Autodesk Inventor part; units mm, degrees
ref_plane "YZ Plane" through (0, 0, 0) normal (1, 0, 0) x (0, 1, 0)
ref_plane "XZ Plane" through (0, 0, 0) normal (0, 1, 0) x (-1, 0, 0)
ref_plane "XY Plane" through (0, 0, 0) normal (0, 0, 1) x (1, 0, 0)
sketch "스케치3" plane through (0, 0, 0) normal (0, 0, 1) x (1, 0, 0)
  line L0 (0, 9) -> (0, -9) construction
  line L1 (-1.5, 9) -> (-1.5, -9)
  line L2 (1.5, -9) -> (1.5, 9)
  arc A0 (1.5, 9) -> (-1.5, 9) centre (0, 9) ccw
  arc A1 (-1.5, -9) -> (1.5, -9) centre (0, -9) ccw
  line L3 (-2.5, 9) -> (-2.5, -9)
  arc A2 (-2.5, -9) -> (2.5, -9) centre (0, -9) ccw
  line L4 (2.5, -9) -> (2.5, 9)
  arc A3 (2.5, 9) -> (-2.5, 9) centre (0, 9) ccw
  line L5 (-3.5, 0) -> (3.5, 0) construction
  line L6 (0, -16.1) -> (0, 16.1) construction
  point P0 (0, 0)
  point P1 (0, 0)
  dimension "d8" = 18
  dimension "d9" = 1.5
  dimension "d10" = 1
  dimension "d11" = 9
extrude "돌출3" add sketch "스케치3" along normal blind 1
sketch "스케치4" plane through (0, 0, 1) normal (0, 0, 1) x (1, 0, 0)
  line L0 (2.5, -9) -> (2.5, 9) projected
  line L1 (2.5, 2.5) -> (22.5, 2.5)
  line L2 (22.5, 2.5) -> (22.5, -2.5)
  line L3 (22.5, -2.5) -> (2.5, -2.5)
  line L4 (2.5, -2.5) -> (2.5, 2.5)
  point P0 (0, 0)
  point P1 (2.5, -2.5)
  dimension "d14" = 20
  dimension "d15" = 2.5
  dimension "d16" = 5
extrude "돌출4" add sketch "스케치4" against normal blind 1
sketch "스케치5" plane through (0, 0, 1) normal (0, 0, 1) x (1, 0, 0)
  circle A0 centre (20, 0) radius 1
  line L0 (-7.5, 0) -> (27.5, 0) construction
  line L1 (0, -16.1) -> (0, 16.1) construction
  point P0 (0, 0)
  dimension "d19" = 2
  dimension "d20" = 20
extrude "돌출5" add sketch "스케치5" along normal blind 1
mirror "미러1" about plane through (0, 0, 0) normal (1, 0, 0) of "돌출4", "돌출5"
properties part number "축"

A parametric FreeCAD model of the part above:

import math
import FreeCAD as App
import Part
import Sketcher

V = App.Vector

doc = App.newDocument("Part")
body = doc.addObject("PartDesign::Body", "Body")

# Sketch on XY plane
sketch1 = body.newObject("Sketcher::SketchObject", "Sketch")
sketch1.AttachmentSupport = (doc.getObject("XY_Plane"), [""])
sketch1.MapMode = "FlatFace"
sketch1.addGeometry(Part.ArcOfCircle(Part.Circle(V(0, 9, 0), V(0, 0, 1), 2.5), math.radians(0), math.radians(180)), False)
sketch1.addGeometry(Part.LineSegment(V(-2.5, 9, 0), V(-2.5, -9, 0)), False)
sketch1.addGeometry(Part.ArcOfCircle(Part.Circle(V(0, -9, 0), V(0, 0, 1), 2.5), math.radians(180), math.radians(360)), False)
sketch1.addGeometry(Part.LineSegment(V(2.5, -9, 0), V(2.5, 9, 0)), False)
sketch1.addGeometry(Part.LineSegment(V(-1.5, -9, 0), V(-1.5, 9, 0)), False)
sketch1.addGeometry(Part.ArcOfCircle(Part.Circle(V(0, 9, 0), V(0, 0, 1), 1.5), math.radians(0), math.radians(180)), False)
sketch1.addGeometry(Part.LineSegment(V(1.5, 9, 0), V(1.5, -9, 0)), False)
sketch1.addGeometry(Part.ArcOfCircle(Part.Circle(V(0, -9, 0), V(0, 0, 1), 1.5), math.radians(180), math.radians(360)), False)
sketch1.addConstraint(Sketcher.Constraint("Tangent", 0, 2, 1, 1))
sketch1.addConstraint(Sketcher.Constraint("Tangent", 1, 2, 2, 1))
sketch1.addConstraint(Sketcher.Constraint("Tangent", 2, 2, 3, 1))
sketch1.addConstraint(Sketcher.Constraint("Tangent", 3, 2, 0, 1))
sketch1.addConstraint(Sketcher.Constraint("Tangent", 4, 2, 5, 2))
sketch1.addConstraint(Sketcher.Constraint("Tangent", 5, 1, 6, 1))
sketch1.addConstraint(Sketcher.Constraint("Tangent", 6, 2, 7, 2))
sketch1.addConstraint(Sketcher.Constraint("Tangent", 7, 1, 4, 1))
sketch1.addConstraint(Sketcher.Constraint("Vertical", 1))
sketch1.addConstraint(Sketcher.Constraint("Vertical", 3))
sketch1.addConstraint(Sketcher.Constraint("Vertical", 4))
sketch1.addConstraint(Sketcher.Constraint("Vertical", 6))
sketch1.addConstraint(Sketcher.Constraint("Coincident", 5, 3, 0, 3))
sketch1.addConstraint(Sketcher.Constraint("Symmetric", 0, 3, 2, 3, -1, 1))
sketch1.addConstraint(Sketcher.Constraint("Horizontal", 7, 3, 1, 2))
sketch1.addConstraint(Sketcher.Constraint("Radius", 5, 1.5))
sketch1.addConstraint(Sketcher.Constraint("DistanceY", 1, 2, 1, 1, 18.0))
sketch1.addConstraint(Sketcher.Constraint("DistanceX", 0, 2, 4, 2, 1.0))
pad1 = body.newObject("PartDesign::Pad", "Pad")
pad1.Profile = sketch1
pad1.Length = 1

# Sketch on XY plane
sketch2 = body.newObject("Sketcher::SketchObject", "Sketch001")
sketch2.AttachmentSupport = (doc.getObject("XY_Plane"), [""])
sketch2.MapMode = "FlatFace"
sketch2.AttachmentOffset = App.Placement(V(0, 0, 1), App.Rotation())
sketch2.addGeometry(Part.LineSegment(V(2, 2, 0), V(2, -2, 0)), False)
sketch2.addGeometry(Part.LineSegment(V(2, -2, 0), V(22, -2, 0)), False)
sketch2.addGeometry(Part.LineSegment(V(22, -2, 0), V(22, 2, 0)), False)
sketch2.addGeometry(Part.LineSegment(V(22, 2, 0), V(2, 2, 0)), False)
sketch2.addConstraint(Sketcher.Constraint("Coincident", 0, 2, 1, 1))
sketch2.addConstraint(Sketcher.Constraint("Coincident", 1, 2, 2, 1))
sketch2.addConstraint(Sketcher.Constraint("Coincident", 2, 2, 3, 1))
sketch2.addConstraint(Sketcher.Constraint("Coincident", 3, 2, 0, 1))
sketch2.addConstraint(Sketcher.Constraint("Vertical", 0))
sketch2.addConstraint(Sketcher.Constraint("Horizontal", 1))
sketch2.addConstraint(Sketcher.Constraint("Vertical", 2))
sketch2.addConstraint(Sketcher.Constraint("Horizontal", 3))
sketch2.addConstraint(Sketcher.Constraint("DistanceX", 1, 1, 1, 2, 20.0))
sketch2.addConstraint(Sketcher.Constraint("DistanceY", 0, 2, 0, 1, 5.0))
sketch2.addConstraint(Sketcher.Constraint("DistanceX", -1, 1, 0, 2, 2.5))
sketch2.addConstraint(Sketcher.Constraint("DistanceY", 0, 2, -1, 1, 2.5))
pad2 = body.newObject("PartDesign::Pad", "Pad001")
pad2.Profile = sketch2
pad2.Length = 1
pad2.Reversed = True

# Sketch on XY plane
sketch3 = body.newObject("Sketcher::SketchObject", "Sketch002")
sketch3.AttachmentSupport = (doc.getObject("XY_Plane"), [""])
sketch3.MapMode = "FlatFace"
sketch3.AttachmentOffset = App.Placement(V(0, 0, 1), App.Rotation())
sketch3.addGeometry(Part.Circle(V(20, 0, 0), V(0, 0, 1), 1), False)
sketch3.addConstraint(Sketcher.Constraint("PointOnObject", 0, 3, -1))
sketch3.addConstraint(Sketcher.Constraint("Diameter", 0, 2.0))
sketch3.addConstraint(Sketcher.Constraint("DistanceX", -1, 1, 0, 3, 20.0))
pad3 = body.newObject("PartDesign::Pad", "Pad002")
pad3.Profile = sketch3
pad3.Length = 1
doc.recompute()

mirrored = body.newObject("PartDesign::Mirrored", "Mirrored")
mirrored.Originals = [pad2, pad3]
mirrored.MirrorPlane = (doc.getObject("YZ_Plane"), [""])
body.Tip = mirrored

doc.recompute()
